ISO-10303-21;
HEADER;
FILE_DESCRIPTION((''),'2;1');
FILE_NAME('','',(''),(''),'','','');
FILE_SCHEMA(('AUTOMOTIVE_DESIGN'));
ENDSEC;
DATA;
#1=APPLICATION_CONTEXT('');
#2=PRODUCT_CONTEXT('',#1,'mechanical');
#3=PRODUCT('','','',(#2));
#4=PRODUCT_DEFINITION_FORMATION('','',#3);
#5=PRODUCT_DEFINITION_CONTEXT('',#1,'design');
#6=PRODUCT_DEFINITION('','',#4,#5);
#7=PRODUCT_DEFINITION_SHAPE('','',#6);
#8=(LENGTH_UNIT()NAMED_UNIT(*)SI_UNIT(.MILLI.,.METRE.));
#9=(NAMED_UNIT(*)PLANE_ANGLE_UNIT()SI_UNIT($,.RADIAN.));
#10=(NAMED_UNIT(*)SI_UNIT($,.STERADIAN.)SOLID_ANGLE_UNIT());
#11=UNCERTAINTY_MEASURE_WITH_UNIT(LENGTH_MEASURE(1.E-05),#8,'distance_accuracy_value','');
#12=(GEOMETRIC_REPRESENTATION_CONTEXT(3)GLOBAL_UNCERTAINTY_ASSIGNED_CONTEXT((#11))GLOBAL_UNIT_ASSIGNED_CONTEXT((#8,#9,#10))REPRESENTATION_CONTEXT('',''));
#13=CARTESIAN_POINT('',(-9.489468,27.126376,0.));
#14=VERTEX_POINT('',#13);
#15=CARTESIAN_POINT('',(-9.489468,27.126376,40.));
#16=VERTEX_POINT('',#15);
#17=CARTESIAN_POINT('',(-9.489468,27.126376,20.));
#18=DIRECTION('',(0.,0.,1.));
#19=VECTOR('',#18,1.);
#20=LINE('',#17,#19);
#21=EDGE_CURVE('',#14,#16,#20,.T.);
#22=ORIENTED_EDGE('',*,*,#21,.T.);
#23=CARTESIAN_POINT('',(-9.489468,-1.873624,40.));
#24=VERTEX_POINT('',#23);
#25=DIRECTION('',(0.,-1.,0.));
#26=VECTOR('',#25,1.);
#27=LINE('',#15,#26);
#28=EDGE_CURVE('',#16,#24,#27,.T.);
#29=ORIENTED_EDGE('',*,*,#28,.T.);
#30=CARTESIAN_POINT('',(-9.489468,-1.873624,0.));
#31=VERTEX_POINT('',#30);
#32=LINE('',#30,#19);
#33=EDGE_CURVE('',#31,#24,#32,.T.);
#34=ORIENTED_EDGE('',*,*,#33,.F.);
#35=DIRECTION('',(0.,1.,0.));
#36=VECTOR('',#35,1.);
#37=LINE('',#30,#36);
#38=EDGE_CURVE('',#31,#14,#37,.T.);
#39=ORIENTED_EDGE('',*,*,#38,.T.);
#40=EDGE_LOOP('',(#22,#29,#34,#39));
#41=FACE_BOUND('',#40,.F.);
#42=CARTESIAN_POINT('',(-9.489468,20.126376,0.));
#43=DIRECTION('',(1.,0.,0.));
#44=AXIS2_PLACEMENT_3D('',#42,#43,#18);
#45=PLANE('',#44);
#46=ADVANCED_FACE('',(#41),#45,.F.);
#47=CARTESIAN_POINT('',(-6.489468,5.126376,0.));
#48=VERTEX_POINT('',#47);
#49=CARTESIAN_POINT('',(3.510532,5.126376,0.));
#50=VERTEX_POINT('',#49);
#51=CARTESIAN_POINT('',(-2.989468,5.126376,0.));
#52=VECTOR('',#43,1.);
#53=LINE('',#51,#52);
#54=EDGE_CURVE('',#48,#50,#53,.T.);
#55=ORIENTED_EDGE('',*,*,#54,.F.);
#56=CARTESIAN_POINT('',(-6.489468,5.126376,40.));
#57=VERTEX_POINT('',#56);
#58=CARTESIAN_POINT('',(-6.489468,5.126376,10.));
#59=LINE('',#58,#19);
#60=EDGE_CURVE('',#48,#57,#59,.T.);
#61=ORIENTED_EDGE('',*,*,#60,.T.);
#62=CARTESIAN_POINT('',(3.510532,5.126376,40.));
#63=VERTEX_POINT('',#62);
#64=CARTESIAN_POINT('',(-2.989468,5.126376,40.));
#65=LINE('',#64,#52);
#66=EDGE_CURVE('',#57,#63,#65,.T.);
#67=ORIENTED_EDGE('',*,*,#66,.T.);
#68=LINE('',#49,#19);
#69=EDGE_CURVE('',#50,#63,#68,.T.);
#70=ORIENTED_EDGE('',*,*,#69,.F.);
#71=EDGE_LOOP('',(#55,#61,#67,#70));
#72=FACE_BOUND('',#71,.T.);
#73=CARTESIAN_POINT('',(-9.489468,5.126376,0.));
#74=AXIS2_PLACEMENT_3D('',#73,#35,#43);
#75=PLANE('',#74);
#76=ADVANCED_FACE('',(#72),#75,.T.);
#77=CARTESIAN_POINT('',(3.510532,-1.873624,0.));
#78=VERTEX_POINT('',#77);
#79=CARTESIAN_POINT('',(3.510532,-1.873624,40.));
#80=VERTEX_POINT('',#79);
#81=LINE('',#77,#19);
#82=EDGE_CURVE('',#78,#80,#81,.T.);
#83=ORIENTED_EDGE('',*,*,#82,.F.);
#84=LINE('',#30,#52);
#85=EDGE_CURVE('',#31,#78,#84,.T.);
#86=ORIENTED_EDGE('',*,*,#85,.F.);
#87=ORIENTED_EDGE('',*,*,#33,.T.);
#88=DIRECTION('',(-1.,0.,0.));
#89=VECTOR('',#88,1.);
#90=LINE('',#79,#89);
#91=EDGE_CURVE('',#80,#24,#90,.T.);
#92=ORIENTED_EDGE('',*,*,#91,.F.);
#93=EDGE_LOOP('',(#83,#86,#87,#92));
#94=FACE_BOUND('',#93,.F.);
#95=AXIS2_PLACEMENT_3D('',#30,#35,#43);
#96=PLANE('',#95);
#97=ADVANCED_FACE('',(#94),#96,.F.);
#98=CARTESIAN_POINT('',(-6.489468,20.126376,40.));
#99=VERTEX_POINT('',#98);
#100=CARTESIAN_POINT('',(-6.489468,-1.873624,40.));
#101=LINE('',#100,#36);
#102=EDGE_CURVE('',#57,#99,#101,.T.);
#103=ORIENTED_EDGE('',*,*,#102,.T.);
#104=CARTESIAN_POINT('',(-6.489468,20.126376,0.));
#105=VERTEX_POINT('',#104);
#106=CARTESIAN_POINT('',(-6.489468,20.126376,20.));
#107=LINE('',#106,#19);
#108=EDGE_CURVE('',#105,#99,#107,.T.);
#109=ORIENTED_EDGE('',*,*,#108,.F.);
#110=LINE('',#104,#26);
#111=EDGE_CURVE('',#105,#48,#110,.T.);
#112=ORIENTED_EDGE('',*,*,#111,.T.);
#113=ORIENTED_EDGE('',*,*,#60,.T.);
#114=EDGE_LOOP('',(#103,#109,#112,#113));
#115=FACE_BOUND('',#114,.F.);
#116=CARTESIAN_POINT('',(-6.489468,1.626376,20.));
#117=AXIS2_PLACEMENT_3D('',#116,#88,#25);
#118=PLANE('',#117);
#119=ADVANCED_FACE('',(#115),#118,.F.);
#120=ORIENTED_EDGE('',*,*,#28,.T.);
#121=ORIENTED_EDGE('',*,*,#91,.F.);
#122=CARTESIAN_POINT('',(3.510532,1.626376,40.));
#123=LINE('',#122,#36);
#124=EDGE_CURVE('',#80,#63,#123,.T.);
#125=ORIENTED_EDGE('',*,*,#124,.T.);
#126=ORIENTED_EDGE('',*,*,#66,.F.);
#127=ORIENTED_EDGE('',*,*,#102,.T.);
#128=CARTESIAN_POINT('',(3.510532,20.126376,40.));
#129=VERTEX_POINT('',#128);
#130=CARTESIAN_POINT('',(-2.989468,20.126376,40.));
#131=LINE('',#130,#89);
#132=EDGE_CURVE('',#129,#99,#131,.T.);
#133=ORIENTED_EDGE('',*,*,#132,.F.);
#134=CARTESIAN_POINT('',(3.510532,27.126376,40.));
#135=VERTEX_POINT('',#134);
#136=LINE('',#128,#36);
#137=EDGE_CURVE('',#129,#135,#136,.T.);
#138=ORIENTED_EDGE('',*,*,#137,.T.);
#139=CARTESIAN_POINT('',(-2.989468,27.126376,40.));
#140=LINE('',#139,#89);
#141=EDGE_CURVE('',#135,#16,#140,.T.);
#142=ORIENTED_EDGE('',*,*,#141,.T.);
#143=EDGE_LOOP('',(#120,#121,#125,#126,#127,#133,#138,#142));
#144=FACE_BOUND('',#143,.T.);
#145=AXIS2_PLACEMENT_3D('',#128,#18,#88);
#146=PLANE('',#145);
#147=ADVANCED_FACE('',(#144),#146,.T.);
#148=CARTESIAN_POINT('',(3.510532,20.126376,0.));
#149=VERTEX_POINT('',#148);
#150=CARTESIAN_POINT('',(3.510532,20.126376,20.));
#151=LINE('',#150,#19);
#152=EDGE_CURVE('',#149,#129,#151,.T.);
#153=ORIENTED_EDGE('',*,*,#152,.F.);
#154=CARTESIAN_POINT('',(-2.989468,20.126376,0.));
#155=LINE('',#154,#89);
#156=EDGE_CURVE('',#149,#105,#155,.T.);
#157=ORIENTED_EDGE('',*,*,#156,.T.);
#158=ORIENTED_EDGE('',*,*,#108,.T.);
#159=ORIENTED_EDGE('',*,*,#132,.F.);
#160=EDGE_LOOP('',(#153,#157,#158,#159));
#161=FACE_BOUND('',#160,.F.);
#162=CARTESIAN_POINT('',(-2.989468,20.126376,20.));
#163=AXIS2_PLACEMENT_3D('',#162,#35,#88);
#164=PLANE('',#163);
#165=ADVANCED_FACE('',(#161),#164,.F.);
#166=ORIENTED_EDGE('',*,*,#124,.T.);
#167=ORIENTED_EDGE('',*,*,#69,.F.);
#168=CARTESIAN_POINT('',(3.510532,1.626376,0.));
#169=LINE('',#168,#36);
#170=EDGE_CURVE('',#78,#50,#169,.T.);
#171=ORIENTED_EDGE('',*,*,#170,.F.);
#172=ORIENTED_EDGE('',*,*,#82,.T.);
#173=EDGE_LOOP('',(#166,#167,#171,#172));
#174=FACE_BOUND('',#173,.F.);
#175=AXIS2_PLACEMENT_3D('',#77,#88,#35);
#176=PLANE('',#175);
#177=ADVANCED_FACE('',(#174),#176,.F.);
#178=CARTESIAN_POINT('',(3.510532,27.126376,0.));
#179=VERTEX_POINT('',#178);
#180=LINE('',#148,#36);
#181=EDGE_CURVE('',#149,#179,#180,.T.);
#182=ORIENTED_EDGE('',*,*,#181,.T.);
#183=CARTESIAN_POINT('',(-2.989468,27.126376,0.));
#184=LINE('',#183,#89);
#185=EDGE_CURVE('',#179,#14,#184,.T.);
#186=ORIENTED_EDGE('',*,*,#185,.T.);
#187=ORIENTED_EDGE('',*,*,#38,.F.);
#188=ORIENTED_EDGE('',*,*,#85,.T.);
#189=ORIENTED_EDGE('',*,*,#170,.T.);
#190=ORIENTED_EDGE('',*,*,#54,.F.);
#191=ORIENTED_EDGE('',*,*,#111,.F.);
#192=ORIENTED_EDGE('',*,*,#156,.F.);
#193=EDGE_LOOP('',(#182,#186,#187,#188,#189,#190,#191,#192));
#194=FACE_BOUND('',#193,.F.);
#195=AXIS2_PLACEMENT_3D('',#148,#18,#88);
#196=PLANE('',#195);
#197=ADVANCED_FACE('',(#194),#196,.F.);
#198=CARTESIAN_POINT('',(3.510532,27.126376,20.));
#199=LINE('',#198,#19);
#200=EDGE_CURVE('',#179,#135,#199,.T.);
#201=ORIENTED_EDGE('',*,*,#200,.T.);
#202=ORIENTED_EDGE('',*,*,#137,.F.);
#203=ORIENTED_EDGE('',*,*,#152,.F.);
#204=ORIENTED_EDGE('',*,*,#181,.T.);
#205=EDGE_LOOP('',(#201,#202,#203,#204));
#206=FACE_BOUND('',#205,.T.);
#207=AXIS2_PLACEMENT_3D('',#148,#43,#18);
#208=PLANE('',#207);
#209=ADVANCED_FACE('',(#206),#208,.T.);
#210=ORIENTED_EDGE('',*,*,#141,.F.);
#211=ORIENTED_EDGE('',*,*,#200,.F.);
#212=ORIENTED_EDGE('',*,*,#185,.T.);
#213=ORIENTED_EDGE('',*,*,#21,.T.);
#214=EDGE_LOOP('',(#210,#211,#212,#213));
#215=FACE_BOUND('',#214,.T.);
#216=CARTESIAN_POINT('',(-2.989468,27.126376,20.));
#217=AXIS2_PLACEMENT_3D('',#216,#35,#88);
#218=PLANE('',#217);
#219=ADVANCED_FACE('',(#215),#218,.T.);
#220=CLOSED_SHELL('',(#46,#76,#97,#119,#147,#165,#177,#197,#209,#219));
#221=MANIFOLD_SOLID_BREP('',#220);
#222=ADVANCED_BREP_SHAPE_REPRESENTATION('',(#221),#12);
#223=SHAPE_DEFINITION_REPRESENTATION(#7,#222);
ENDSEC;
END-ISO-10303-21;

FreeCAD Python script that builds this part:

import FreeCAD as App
import Part
import Sketcher

V = App.Vector


def add_polygon(sketch, points):
    """Adds a closed chain of lines whose ends are joined by coincident constraints."""
    first, n = sketch.GeometryCount, len(points)
    for a, b in zip(points, points[1:] + points[:1]):
        sketch.addGeometry(Part.LineSegment(App.Vector(*a, 0), App.Vector(*b, 0)), False)
    for i in range(n):
        sketch.addConstraint(Sketcher.Constraint("Coincident", first + i, 2, first + (i + 1) % n, 1))

doc = App.newDocument("Part")
params = doc.addObject("Spreadsheet::Sheet", "Params")
for row, (alias, value) in enumerate([
    ("sketch1_width", "13 mm"),
    ("sketch1_height", "7 mm"),
    ("pad1_length", "40 mm"),
    ("sketch2_width", "22 mm"),
    ("sketch2_height", "40 mm"),
    ("pad2_length", "3 mm"),
    ("sketch3_width", "13 mm"),
    ("sketch3_height", "40 mm"),
    ("pad3_length", "7 mm"),
], start=1):
    params.set(f"A{row}", alias)
    params.set(f"B{row}", "=" + value)
    params.setAlias(f"B{row}", alias)

body = doc.addObject("PartDesign::Body", "Body")

# Sketch on XY plane
sketch1 = body.newObject("Sketcher::SketchObject", "Sketch")
sketch1.AttachmentSupport = (doc.getObject("XY_Plane"), [""])
sketch1.MapMode = "FlatFace"
add_polygon(sketch1, [(-9.489468, 5.126376), (-9.489468, -1.873624), (3.510532, -1.873624), (3.510532, 5.126376)])  # lines 0-3
sketch1.addConstraint(Sketcher.Constraint("Vertical", 0))
sketch1.addConstraint(Sketcher.Constraint("Horizontal", 1))
sketch1.addConstraint(Sketcher.Constraint("Vertical", 2))
sketch1.addConstraint(Sketcher.Constraint("Horizontal", 3))
sketch1.addConstraint(Sketcher.Constraint("DistanceX", 1, 1, 1, 2, 13.0))
sketch1.addConstraint(Sketcher.Constraint("DistanceY", 0, 2, 0, 1, 7.0))
sketch1.addConstraint(Sketcher.Constraint("DistanceX", -1, 1, 1, 2, 3.510532))
sketch1.addConstraint(Sketcher.Constraint("DistanceY", 0, 2, -1, 1, 1.873624))
sketch1.setExpression("Constraints[8]", "Params.sketch1_width")
sketch1.setExpression("Constraints[9]", "Params.sketch1_height")
pad1 = body.newObject("PartDesign::Pad", "Pad")
pad1.Profile = sketch1
pad1.setExpression("Length", "Params.pad1_length")

# Sketch on YZ plane
sketch2 = body.newObject("Sketcher::SketchObject", "Sketch001")
sketch2.AttachmentSupport = (doc.getObject("YZ_Plane"), [""])
sketch2.MapMode = "FlatFace"
sketch2.AttachmentOffset = App.Placement(V(0, 0, -9.489468), App.Rotation())
add_polygon(sketch2, [(-1.873624, 0), (-1.873624, 40), (20.126376, 40), (20.126376, 0)])  # lines 0-3
sketch2.addConstraint(Sketcher.Constraint("Vertical", 0))
sketch2.addConstraint(Sketcher.Constraint("Horizontal", 1))
sketch2.addConstraint(Sketcher.Constraint("Vertical", 2))
sketch2.addConstraint(Sketcher.Constraint("Horizontal", 3))
sketch2.addConstraint(Sketcher.Constraint("PointOnObject", 2, 2, -1))
sketch2.addConstraint(Sketcher.Constraint("DistanceX", 1, 1, 1, 2, 22.0))
sketch2.addConstraint(Sketcher.Constraint("DistanceY", 0, 1, 0, 2, 40.0))
sketch2.addConstraint(Sketcher.Constraint("DistanceX", 0, 2, -1, 1, 1.873624))
sketch2.setExpression("Constraints[9]", "Params.sketch2_width")
sketch2.setExpression("Constraints[10]", "Params.sketch2_height")
pad2 = body.newObject("PartDesign::Pad", "Pad001")
pad2.Profile = sketch2
pad2.setExpression("Length", "Params.pad2_length")

# Sketch on XZ plane
sketch3 = body.newObject("Sketcher::SketchObject", "Sketch002")
sketch3.AttachmentSupport = (doc.getObject("XZ_Plane"), [""])
sketch3.MapMode = "FlatFace"
sketch3.AttachmentOffset = App.Placement(V(0, 0, -20.126376), App.Rotation())
add_polygon(sketch3, [(3.510532, 40), (3.510532, 0), (-9.489468, 0), (-9.489468, 40)])  # lines 0-3
sketch3.addConstraint(Sketcher.Constraint("Vertical", 0))
sketch3.addConstraint(Sketcher.Constraint("Horizontal", 1))
sketch3.addConstraint(Sketcher.Constraint("Vertical", 2))
sketch3.addConstraint(Sketcher.Constraint("Horizontal", 3))
sketch3.addConstraint(Sketcher.Constraint("PointOnObject", 0, 2, -1))
sketch3.addConstraint(Sketcher.Constraint("DistanceX", 1, 2, 1, 1, 13.0))
sketch3.addConstraint(Sketcher.Constraint("DistanceY", 0, 2, 0, 1, 40.0))
sketch3.addConstraint(Sketcher.Constraint("DistanceX", -1, 1, 0, 2, 3.510532))
sketch3.setExpression("Constraints[9]", "Params.sketch3_width")
sketch3.setExpression("Constraints[10]", "Params.sketch3_height")
pad3 = body.newObject("PartDesign::Pad", "Pad002")
pad3.Profile = sketch3
pad3.setExpression("Length", "Params.pad3_length")
pad3.Reversed = True

doc.recompute()
